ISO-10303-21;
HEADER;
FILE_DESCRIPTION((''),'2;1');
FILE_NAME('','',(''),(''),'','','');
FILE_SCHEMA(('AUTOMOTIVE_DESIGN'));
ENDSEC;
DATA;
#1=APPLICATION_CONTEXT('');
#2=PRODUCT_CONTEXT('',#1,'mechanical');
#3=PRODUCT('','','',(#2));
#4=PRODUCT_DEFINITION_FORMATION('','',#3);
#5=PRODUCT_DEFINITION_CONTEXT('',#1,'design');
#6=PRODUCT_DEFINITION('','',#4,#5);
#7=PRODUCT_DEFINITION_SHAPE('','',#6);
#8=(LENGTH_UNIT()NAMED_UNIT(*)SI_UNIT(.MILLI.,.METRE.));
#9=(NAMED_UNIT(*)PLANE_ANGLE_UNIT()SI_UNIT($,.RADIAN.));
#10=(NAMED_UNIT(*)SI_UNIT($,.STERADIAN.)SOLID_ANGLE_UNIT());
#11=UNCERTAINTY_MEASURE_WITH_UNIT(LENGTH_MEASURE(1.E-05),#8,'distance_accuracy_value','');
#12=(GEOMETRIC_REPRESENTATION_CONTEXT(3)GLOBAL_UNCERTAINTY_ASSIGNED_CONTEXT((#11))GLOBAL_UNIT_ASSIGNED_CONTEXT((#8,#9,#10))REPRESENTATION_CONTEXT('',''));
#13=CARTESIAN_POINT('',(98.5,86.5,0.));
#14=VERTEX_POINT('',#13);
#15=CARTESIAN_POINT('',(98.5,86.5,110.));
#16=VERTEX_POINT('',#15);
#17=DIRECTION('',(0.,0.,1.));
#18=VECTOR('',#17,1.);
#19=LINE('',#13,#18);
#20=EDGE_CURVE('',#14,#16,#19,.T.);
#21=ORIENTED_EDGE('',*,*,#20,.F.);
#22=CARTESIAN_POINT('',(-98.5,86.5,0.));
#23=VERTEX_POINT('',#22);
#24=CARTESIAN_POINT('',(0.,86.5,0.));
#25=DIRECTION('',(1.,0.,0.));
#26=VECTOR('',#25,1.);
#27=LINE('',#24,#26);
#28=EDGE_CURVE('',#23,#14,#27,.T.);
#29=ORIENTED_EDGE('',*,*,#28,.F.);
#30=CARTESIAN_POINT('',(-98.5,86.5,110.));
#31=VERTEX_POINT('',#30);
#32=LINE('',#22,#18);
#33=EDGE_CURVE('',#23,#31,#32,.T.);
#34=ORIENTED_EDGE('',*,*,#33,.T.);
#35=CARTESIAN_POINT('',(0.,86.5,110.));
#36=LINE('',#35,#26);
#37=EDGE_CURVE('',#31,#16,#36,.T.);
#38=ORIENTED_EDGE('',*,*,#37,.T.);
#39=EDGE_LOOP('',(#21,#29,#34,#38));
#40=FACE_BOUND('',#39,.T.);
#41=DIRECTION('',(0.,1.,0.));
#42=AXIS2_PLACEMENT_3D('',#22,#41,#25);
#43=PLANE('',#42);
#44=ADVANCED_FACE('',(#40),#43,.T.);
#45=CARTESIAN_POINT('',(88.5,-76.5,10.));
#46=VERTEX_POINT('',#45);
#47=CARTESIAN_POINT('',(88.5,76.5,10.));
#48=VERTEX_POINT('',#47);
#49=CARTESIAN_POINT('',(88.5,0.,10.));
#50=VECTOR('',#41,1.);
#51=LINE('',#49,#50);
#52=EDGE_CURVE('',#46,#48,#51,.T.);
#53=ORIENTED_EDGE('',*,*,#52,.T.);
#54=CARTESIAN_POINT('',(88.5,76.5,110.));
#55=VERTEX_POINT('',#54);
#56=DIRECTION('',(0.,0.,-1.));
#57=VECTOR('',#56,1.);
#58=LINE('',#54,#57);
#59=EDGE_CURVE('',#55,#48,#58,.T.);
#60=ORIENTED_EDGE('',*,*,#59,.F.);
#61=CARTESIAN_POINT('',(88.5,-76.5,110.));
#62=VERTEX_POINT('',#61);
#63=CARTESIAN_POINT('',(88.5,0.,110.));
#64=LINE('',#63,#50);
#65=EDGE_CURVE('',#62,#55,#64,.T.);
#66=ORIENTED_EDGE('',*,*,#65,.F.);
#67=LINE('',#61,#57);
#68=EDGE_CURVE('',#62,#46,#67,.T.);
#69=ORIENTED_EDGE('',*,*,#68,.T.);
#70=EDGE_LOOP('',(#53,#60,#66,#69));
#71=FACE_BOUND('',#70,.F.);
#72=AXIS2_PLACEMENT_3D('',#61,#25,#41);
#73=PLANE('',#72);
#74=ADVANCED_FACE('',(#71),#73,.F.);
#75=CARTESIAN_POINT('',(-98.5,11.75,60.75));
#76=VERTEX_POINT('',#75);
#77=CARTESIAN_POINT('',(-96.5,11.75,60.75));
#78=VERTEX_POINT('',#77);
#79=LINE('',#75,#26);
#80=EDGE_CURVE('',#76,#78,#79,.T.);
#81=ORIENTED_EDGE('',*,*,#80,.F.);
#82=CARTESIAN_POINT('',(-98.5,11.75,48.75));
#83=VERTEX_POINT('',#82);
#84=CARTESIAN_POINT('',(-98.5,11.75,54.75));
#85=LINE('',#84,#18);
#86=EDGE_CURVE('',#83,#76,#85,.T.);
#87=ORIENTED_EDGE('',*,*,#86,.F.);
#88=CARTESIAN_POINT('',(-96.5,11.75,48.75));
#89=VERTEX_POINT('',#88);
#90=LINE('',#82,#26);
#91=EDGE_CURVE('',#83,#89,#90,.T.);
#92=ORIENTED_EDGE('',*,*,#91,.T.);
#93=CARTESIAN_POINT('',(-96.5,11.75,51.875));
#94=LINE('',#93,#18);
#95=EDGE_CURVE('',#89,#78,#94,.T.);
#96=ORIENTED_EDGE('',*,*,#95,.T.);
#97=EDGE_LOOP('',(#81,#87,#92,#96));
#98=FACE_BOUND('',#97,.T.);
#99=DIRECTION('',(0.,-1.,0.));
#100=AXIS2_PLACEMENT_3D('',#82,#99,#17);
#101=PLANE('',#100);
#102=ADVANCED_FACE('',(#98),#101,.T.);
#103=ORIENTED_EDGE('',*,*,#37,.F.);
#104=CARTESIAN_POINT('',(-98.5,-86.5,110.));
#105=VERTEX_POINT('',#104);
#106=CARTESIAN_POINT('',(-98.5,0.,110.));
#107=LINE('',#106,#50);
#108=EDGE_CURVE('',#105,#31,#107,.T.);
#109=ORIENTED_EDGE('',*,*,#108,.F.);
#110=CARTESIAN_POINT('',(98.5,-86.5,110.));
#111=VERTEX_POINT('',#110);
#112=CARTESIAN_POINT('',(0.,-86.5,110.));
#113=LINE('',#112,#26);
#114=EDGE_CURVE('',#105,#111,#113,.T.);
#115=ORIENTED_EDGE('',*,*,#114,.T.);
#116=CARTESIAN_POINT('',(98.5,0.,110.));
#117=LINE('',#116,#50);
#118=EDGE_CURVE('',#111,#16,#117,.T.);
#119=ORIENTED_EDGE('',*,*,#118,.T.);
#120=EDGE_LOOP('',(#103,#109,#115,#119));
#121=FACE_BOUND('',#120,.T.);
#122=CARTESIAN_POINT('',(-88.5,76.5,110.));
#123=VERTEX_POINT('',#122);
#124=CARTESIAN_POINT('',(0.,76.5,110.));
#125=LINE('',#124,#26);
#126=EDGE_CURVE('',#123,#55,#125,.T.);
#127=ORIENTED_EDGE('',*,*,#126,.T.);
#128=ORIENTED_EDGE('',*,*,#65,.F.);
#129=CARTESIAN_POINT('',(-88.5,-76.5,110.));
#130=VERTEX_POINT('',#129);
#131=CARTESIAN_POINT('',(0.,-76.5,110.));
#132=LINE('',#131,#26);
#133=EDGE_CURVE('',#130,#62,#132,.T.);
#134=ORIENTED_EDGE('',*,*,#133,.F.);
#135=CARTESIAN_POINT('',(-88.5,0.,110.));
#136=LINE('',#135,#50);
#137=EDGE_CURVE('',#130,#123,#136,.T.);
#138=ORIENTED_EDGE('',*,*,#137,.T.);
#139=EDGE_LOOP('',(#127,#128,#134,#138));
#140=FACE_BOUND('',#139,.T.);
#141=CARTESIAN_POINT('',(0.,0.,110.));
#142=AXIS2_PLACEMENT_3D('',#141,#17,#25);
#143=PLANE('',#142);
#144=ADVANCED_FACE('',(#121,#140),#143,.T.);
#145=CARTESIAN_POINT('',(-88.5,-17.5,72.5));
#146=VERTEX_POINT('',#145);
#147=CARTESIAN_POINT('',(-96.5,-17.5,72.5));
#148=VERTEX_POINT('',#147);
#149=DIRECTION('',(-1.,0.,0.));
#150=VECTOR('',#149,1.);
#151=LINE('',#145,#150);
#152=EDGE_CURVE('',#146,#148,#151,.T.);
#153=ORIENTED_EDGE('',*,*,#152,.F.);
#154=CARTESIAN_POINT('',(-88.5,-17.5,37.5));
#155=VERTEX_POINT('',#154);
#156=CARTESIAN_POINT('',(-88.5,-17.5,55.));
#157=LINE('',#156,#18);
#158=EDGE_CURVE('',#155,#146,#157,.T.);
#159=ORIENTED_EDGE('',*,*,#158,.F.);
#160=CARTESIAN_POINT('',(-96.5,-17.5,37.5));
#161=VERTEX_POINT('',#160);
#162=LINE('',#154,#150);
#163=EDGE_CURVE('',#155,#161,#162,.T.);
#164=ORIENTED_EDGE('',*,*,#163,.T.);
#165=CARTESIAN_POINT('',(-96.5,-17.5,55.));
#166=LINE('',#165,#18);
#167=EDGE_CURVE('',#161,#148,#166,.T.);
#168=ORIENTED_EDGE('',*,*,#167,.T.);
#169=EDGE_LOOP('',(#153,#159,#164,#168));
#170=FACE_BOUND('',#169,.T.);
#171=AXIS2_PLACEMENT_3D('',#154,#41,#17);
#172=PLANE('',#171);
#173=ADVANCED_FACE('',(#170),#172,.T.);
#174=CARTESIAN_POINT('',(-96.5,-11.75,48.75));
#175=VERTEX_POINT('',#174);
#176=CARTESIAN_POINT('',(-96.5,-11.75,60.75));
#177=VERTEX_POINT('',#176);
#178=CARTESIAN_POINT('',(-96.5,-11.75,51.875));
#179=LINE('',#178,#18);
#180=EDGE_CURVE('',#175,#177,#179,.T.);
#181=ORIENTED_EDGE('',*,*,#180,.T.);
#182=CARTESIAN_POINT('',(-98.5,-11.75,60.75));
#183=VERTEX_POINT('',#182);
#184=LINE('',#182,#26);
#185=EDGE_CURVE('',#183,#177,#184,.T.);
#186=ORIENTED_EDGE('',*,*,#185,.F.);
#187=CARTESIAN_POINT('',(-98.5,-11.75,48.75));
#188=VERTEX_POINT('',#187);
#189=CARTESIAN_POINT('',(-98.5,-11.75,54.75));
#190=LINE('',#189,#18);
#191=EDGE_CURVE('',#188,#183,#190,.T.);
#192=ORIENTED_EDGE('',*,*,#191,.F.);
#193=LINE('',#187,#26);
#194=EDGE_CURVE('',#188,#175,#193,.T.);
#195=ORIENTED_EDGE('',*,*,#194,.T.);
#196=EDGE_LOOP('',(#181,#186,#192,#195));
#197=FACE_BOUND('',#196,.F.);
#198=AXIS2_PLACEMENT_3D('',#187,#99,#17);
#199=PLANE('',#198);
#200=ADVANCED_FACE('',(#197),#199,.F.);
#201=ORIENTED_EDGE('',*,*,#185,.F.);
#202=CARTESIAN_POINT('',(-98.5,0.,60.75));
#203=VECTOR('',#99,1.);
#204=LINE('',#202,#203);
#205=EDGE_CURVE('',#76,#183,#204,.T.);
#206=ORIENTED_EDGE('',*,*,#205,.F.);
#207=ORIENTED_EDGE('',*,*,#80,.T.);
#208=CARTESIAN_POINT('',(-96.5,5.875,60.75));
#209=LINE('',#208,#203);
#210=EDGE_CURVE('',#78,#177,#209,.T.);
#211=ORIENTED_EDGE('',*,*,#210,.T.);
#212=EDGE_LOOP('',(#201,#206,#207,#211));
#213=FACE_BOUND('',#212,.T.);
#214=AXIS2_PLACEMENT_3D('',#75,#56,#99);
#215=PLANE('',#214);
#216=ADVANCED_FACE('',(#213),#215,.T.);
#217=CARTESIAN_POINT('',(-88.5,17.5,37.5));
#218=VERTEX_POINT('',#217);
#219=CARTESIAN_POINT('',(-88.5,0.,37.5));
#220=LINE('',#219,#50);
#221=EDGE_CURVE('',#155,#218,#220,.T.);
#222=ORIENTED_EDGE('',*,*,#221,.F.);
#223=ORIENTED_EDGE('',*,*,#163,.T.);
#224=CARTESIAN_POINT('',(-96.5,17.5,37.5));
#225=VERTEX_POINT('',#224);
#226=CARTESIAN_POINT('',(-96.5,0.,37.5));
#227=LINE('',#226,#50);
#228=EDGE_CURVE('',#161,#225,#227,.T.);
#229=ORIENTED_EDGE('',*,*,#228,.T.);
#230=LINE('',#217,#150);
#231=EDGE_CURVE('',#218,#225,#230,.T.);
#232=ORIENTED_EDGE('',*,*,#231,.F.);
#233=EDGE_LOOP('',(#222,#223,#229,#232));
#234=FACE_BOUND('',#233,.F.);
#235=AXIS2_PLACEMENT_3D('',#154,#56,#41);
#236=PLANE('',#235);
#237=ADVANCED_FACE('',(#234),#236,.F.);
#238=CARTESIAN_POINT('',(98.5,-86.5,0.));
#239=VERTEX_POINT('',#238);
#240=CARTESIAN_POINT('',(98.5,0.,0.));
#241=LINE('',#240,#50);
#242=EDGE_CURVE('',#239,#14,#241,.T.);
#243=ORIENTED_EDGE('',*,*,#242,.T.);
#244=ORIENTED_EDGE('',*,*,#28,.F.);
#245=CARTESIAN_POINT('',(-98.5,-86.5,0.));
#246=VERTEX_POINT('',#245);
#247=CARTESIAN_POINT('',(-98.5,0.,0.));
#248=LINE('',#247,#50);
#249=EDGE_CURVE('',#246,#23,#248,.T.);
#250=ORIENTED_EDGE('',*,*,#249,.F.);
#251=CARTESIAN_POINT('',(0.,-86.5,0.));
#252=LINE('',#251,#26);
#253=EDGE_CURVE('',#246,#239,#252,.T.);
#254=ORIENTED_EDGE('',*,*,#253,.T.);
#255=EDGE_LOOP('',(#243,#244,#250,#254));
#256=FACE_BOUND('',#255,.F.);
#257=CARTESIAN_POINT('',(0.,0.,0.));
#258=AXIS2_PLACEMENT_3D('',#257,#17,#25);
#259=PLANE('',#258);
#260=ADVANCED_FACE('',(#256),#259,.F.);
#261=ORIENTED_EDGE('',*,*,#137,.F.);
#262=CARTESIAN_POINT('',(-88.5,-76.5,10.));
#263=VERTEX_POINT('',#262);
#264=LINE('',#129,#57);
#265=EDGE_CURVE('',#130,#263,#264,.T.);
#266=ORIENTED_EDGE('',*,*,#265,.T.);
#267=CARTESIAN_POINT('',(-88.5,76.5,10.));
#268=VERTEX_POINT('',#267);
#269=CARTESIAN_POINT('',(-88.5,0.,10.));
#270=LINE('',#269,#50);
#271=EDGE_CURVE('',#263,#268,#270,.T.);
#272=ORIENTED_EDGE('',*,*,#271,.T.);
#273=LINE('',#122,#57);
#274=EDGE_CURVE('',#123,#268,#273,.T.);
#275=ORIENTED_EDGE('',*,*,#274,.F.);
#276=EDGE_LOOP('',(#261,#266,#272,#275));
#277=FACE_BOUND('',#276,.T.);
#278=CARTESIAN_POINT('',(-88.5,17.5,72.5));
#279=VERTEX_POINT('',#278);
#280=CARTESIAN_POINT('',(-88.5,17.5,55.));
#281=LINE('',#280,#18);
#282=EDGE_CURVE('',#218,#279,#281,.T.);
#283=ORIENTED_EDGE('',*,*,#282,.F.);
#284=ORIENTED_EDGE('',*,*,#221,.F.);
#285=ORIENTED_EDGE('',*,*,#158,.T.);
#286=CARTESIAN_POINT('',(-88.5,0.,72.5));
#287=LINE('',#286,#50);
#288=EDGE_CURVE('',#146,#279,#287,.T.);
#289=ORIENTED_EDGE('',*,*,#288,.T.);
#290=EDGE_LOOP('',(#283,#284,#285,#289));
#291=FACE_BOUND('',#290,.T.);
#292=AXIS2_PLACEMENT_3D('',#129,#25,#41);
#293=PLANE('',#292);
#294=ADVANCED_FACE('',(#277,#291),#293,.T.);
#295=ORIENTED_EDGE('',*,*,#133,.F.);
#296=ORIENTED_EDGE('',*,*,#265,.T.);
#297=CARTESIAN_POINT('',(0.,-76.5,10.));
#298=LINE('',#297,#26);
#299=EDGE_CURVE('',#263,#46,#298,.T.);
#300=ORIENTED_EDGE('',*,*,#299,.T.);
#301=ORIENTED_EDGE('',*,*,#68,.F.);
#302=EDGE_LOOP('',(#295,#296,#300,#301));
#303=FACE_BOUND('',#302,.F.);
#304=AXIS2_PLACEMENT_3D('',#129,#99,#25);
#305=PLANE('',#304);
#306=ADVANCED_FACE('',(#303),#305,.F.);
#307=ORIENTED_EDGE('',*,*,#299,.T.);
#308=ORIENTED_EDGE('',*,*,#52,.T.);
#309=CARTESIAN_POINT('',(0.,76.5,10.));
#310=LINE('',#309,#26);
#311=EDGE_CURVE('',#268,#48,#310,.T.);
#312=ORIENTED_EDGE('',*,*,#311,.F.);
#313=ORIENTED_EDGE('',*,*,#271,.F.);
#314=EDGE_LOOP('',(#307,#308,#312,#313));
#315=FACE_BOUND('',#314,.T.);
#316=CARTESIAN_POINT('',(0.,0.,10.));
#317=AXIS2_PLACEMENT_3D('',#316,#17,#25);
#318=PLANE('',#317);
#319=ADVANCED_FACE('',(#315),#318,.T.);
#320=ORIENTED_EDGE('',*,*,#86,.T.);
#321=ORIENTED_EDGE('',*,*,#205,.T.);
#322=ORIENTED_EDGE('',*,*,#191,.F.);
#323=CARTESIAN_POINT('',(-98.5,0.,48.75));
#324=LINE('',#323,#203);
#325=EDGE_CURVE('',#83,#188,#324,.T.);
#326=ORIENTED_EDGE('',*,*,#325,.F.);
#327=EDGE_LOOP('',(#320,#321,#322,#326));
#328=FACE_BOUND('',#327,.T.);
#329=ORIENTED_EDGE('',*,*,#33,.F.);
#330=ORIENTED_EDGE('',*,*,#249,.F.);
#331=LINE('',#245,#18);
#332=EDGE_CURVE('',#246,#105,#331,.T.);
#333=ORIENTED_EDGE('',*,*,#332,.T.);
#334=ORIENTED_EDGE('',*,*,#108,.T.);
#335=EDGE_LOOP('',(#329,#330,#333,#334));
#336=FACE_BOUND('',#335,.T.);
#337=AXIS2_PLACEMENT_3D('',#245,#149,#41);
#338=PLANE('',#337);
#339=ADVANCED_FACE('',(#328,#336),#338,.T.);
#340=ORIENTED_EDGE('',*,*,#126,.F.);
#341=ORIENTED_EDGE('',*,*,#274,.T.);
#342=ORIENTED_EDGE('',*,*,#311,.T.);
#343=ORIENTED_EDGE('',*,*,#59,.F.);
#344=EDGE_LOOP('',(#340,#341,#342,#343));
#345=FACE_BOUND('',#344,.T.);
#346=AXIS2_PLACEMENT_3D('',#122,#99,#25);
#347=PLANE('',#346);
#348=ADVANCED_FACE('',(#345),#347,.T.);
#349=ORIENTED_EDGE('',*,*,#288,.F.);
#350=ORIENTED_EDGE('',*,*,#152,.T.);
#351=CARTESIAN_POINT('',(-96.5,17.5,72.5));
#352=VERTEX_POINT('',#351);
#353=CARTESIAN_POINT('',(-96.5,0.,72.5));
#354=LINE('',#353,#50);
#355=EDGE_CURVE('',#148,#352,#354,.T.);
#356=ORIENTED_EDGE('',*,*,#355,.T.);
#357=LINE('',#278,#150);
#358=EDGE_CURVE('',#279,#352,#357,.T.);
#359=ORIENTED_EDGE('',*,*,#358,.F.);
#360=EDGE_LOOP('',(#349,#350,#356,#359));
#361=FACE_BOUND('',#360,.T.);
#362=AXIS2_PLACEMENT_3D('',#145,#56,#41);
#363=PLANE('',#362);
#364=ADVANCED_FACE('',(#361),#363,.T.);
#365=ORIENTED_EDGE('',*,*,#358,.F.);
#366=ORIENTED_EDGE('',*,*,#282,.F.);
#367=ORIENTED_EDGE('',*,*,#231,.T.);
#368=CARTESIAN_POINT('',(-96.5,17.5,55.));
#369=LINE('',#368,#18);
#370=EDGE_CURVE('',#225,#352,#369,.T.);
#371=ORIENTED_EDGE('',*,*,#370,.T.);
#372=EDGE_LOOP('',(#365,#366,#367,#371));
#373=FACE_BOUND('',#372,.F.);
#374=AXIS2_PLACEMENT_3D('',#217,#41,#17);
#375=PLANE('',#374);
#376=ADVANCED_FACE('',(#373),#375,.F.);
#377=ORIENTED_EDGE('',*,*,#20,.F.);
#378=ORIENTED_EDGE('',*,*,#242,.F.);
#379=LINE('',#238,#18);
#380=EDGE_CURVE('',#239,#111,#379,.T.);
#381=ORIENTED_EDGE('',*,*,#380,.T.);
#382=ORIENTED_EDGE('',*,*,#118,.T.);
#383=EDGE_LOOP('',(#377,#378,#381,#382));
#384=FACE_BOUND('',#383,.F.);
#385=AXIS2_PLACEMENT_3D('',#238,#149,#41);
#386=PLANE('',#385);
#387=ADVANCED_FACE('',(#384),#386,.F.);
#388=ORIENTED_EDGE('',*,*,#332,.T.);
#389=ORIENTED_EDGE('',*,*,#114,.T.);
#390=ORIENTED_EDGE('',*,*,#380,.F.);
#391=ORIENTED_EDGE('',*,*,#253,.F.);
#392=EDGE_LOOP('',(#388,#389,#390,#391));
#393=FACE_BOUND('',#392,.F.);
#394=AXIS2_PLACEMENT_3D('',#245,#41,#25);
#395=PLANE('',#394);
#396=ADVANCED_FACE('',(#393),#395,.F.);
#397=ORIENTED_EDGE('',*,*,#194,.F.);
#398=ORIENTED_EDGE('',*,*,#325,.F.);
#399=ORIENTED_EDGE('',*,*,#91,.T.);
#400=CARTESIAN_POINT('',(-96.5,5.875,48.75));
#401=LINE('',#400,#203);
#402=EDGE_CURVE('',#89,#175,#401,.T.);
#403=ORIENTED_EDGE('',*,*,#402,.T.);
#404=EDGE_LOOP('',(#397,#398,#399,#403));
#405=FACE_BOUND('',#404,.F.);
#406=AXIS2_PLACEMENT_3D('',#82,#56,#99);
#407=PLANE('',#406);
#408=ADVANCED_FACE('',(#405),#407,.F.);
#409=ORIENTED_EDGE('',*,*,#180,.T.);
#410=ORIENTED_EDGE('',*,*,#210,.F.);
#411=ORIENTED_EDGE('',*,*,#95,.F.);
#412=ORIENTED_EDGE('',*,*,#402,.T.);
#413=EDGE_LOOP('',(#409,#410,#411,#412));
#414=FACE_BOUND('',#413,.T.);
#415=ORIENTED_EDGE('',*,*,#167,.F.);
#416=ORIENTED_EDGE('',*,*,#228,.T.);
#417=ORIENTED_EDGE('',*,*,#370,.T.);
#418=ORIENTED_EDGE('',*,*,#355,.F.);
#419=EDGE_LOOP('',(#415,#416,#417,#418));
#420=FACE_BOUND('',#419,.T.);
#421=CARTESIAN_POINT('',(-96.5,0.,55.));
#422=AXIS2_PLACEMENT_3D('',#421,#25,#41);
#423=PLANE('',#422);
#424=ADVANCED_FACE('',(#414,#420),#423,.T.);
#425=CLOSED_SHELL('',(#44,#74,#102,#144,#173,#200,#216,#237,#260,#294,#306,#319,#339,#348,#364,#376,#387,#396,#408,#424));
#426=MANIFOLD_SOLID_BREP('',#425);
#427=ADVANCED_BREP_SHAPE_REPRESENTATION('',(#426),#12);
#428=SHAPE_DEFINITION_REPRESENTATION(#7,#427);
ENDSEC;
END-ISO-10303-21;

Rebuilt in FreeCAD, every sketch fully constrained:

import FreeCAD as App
import Part
import Sketcher
from FreeCAD import Vector
Q = App.Units.Quantity

doc = App.newDocument("Part")
params = doc.addObject("Spreadsheet::Sheet", "Params")
for row, (alias, value) in enumerate([
    ("sketch1_width", "197 mm"),
    ("sketch1_height", "173 mm"),
    ("pad1_length", "110 mm"),
    ("sketch2_width", "177 mm"),
    ("sketch2_height", "153 mm"),
    ("pocket1_length", "100 mm"),
    ("sketch3_height", "12 mm"),
    ("sketch3_width", "23.5 mm"),
    ("pocket2_length", "20 mm"),
    ("sketch4_width", "35 mm"),
    ("pocket3_length", "8 mm"),
], start=1):
    params.set(f"A{row}", alias)
    params.set(f"B{row}", "=" + value)
    params.setAlias(f"B{row}", alias)

body = doc.addObject("PartDesign::Body", "Body")

# Sketch on XY plane
sketch1 = doc.addObject("Sketcher::SketchObject", "Sketch")
body.addObject(sketch1)
sketch1.AttachmentSupport = (doc.XY_Plane, [""])
sketch1.MapMode = "FlatFace"
sketch1.addGeometry([
    Part.LineSegment(Vector(-98, 86, 0), Vector(-98, -86, 0)),
    Part.LineSegment(Vector(-98, -86, 0), Vector(98, -86, 0)),
    Part.LineSegment(Vector(98, -86, 0), Vector(98, 86, 0)),
    Part.LineSegment(Vector(98, 86, 0), Vector(-98, 86, 0)),
], False)
sketch1.addConstraint([
    Sketcher.Constraint("Coincident", 0, 2, 1, 1),
    Sketcher.Constraint("Coincident", 1, 2, 2, 1),
    Sketcher.Constraint("Coincident", 2, 2, 3, 1),
    Sketcher.Constraint("Coincident", 3, 2, 0, 1),
    Sketcher.Constraint("Vertical", 0),
    Sketcher.Constraint("Horizontal", 1),
    Sketcher.Constraint("Vertical", 2),
    Sketcher.Constraint("Horizontal", 3),
    Sketcher.Constraint("Symmetric", 0, 2, 2, 2, -1, 1),
    Sketcher.Constraint("DistanceX", 1, 1, 1, 2, Q("197 mm")),
    Sketcher.Constraint("DistanceY", 0, 2, 0, 1, Q("173 mm")),
])
sketch1.setExpression("Constraints[9]", "Params.sketch1_width")
sketch1.setExpression("Constraints[10]", "Params.sketch1_height")
pad1 = doc.addObject("PartDesign::Pad", "Pad")
body.addObject(pad1)
pad1.Profile = sketch1
pad1.setExpression("Length", "Params.pad1_length")

# Sketch on XY plane
sketch2 = doc.addObject("Sketcher::SketchObject", "Sketch001")
body.addObject(sketch2)
sketch2.AttachmentSupport = (doc.XY_Plane, [""])
sketch2.MapMode = "FlatFace"
sketch2.AttachmentOffset = App.Placement(Vector(0, 0, 110), App.Rotation())
sketch2.addGeometry([
    Part.LineSegment(Vector(-88, 76, 0), Vector(-88, -76, 0)),
    Part.LineSegment(Vector(-88, -76, 0), Vector(88, -76, 0)),
    Part.LineSegment(Vector(88, -76, 0), Vector(88, 76, 0)),
    Part.LineSegment(Vector(88, 76, 0), Vector(-88, 76, 0)),
], False)
sketch2.addConstraint([
    Sketcher.Constraint("Coincident", 0, 2, 1, 1),
    Sketcher.Constraint("Coincident", 1, 2, 2, 1),
    Sketcher.Constraint("Coincident", 2, 2, 3, 1),
    Sketcher.Constraint("Coincident", 3, 2, 0, 1),
    Sketcher.Constraint("Vertical", 0),
    Sketcher.Constraint("Horizontal", 1),
    Sketcher.Constraint("Vertical", 2),
    Sketcher.Constraint("Horizontal", 3),
    Sketcher.Constraint("Symmetric", 0, 2, 2, 2, -1, 1),
    Sketcher.Constraint("DistanceX", 1, 1, 1, 2, Q("177 mm")),
    Sketcher.Constraint("DistanceY", 0, 2, 0, 1, Q("153 mm")),
])
sketch2.setExpression("Constraints[9]", "Params.sketch2_width")
sketch2.setExpression("Constraints[10]", "Params.sketch2_height")
pocket1 = doc.addObject("PartDesign::Pocket", "Pocket")
body.addObject(pocket1)
pocket1.Profile = sketch2
pocket1.setExpression("Length", "Params.pocket1_length")

# Sketch on YZ plane
sketch3 = doc.addObject("Sketcher::SketchObject", "Sketch002")
body.addObject(sketch3)
sketch3.AttachmentSupport = (doc.YZ_Plane, [""])
sketch3.MapMode = "FlatFace"
sketch3.AttachmentOffset = App.Placement(Vector(0, 0, -98.5), App.Rotation())
sketch3.addGeometry([
    Part.LineSegment(Vector(12, 61, 0), Vector(12, 49, 0)),
    Part.LineSegment(Vector(12, 49, 0), Vector(-12, 49, 0)),
    Part.LineSegment(Vector(-12, 49, 0), Vector(-12, 61, 0)),
    Part.LineSegment(Vector(-12, 61, 0), Vector(12, 61, 0)),
], False)
sketch3.addConstraint([
    Sketcher.Constraint("Coincident", 0, 2, 1, 1),
    Sketcher.Constraint("Coincident", 1, 2, 2, 1),
    Sketcher.Constraint("Coincident", 2, 2, 3, 1),
    Sketcher.Constraint("Coincident", 3, 2, 0, 1),
    Sketcher.Constraint("Vertical", 0),
    Sketcher.Constraint("Horizontal", 1),
    Sketcher.Constraint("Vertical", 2),
    Sketcher.Constraint("Horizontal", 3),
    Sketcher.Constraint("DistanceY", 0, 2, 0, 1, Q("12 mm")),
    Sketcher.Constraint("DistanceX", 1, 2, 1, 1, Q("23.5 mm")),
    Sketcher.Constraint("DistanceX", -1, 1, 0, 2, Q("11.75 mm")),
    Sketcher.Constraint("DistanceY", -1, 1, 0, 2, Q("48.75 mm")),
])
sketch3.setExpression("Constraints[8]", "Params.sketch3_height")
sketch3.setExpression("Constraints[9]", "Params.sketch3_width")
pocket2 = doc.addObject("PartDesign::Pocket", "Pocket001")
body.addObject(pocket2)
pocket2.Profile = sketch3
pocket2.setExpression("Length", "Params.pocket2_length")
pocket2.Reversed = True

# Sketch on YZ plane
sketch4 = doc.addObject("Sketcher::SketchObject", "Sketch003")
body.addObject(sketch4)
sketch4.AttachmentSupport = (doc.YZ_Plane, [""])
sketch4.MapMode = "FlatFace"
sketch4.AttachmentOffset = App.Placement(Vector(0, 0, -88.5), App.Rotation())
sketch4.addGeometry([
    Part.LineSegment(Vector(-18, 72, 0), Vector(-18, 38, 0)),
    Part.LineSegment(Vector(-18, 38, 0), Vector(18, 38, 0)),
    Part.LineSegment(Vector(18, 38, 0), Vector(18, 72, 0)),
    Part.LineSegment(Vector(18, 72, 0), Vector(-18, 72, 0)),
], False)
sketch4.addConstraint([
    Sketcher.Constraint("Coincident", 0, 2, 1, 1),
    Sketcher.Constraint("Coincident", 1, 2, 2, 1),
    Sketcher.Constraint("Coincident", 2, 2, 3, 1),
    Sketcher.Constraint("Coincident", 3, 2, 0, 1),
    Sketcher.Constraint("Vertical", 0),
    Sketcher.Constraint("Horizontal", 1),
    Sketcher.Constraint("Vertical", 2),
    Sketcher.Constraint("Horizontal", 3),
    Sketcher.Constraint("Equal", 3, 0),
    Sketcher.Constraint("DistanceX", 1, 1, 1, 2, Q("35 mm")),
    Sketcher.Constraint("DistanceX", 0, 2, -1, 1, Q("17.5 mm")),
    Sketcher.Constraint("DistanceY", -1, 1, 0, 2, Q("37.5 mm")),
])
sketch4.setExpression("Constraints[9]", "Params.sketch4_width")
pocket3 = doc.addObject("PartDesign::Pocket", "Pocket002")
body.addObject(pocket3)
pocket3.Profile = sketch4
pocket3.setExpression("Length", "Params.pocket3_length")

doc.recompute()
